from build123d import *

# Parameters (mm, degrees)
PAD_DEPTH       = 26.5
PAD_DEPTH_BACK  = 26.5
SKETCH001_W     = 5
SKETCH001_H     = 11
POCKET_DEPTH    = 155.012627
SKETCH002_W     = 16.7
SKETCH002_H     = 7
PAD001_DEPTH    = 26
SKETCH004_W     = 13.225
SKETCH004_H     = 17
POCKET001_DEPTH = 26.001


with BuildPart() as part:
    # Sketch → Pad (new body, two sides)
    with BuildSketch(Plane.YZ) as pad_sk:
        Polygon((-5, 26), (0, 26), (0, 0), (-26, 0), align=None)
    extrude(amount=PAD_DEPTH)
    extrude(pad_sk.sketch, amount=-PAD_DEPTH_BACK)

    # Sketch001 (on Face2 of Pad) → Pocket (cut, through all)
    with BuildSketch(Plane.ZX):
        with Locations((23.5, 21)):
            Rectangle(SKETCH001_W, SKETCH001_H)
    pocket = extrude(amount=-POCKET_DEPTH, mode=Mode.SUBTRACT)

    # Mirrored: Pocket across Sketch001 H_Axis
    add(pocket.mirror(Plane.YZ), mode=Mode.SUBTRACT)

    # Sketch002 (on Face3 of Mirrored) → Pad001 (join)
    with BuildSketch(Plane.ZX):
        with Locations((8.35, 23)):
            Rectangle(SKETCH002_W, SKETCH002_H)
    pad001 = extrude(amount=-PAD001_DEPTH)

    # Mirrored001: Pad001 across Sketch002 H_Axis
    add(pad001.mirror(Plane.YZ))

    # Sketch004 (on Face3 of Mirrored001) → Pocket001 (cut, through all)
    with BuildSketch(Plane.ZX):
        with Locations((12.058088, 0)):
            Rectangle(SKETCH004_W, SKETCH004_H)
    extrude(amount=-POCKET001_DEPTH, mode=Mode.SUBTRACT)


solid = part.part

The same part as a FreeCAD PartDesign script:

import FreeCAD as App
import Part
import Sketcher
from FreeCAD import Vector

doc = App.newDocument("Part")
body = doc.addObject("PartDesign::Body", "Body")

# Sketch on YZ plane
sketch1 = doc.addObject("Sketcher::SketchObject", "Sketch")
body.addObject(sketch1)
sketch1.AttachmentSupport = (doc.YZ_Plane, [""])
sketch1.MapMode = "FlatFace"
sketch1.addGeometry([
    Part.LineSegment(Vector(0, 26, 0), Vector(-5, 26, 0)),
    Part.LineSegment(Vector(-5, 26, 0), Vector(-26, 0, 0)),
    Part.LineSegment(Vector(-26, 0, 0), Vector(0, 0, 0)),
    Part.LineSegment(Vector(0, 0, 0), Vector(0, 26, 0)),
], False)
sketch1.addConstraint([
    Sketcher.Constraint("Coincident", 0, 2, 1, 1),
    Sketcher.Constraint("Coincident", 1, 2, 2, 1),
    Sketcher.Constraint("Coincident", 2, 2, 3, 1),
    Sketcher.Constraint("Coincident", 3, 2, 0, 1),
    Sketcher.Constraint("Horizontal", 0),
    Sketcher.Constraint("Horizontal", 2),
    Sketcher.Constraint("Vertical", 3),
    Sketcher.Constraint("Coincident", 2, 2, -1, 1),
    Sketcher.Constraint("Equal", 2, 3),
    Sketcher.Constraint("DistanceX", 0, 2, 0, 1, 5.0),
    Sketcher.Constraint("DistanceX", 2, 1, 2, 2, 26.0),
])
pad1 = doc.addObject("PartDesign::Pad", "Pad")
body.addObject(pad1)
pad1.Profile = sketch1
pad1.Type = "TwoLengths"
pad1.Length = 26.5
pad1.Length2 = 26.5

# Sketch on XZ plane
sketch2 = doc.addObject("Sketcher::SketchObject", "Sketch001")
body.addObject(sketch2)
sketch2.AttachmentSupport = (doc.XZ_Plane, [""])
sketch2.MapMode = "FlatFace"
sketch2.addGeometry([
    Part.LineSegment(Vector(26.5, 21, 0), Vector(15.5, 21, 0)),
    Part.LineSegment(Vector(15.5, 21, 0), Vector(15.5, 26, 0)),
    Part.LineSegment(Vector(15.5, 26, 0), Vector(26.5, 26, 0)),
    Part.LineSegment(Vector(26.5, 26, 0), Vector(26.5, 21, 0)),
], False)
sketch2.addConstraint([
    Sketcher.Constraint("Coincident", 0, 2, 1, 1),
    Sketcher.Constraint("Coincident", 1, 2, 2, 1),
    Sketcher.Constraint("Coincident", 2, 2, 3, 1),
    Sketcher.Constraint("Coincident", 3, 2, 0, 1),
    Sketcher.Constraint("Horizontal", 0),
    Sketcher.Constraint("Vertical", 1),
    Sketcher.Constraint("Horizontal", 2),
    Sketcher.Constraint("Vertical", 3),
    Sketcher.Constraint("DistanceX", 0, 2, 0, 1, 11.0),
    Sketcher.Constraint("DistanceY", 1, 1, 1, 2, 5.0),
    Sketcher.Constraint("DistanceY", -1, 1, 0, 2, 21.0),
    Sketcher.Constraint("DistanceX", -1, 1, 0, 2, 15.5),
])
pocket1 = doc.addObject("PartDesign::Pocket", "Pocket")
body.addObject(pocket1)
pocket1.Profile = sketch2
pocket1.Type = "ThroughAll"
pocket1.Reversed = True
doc.recompute()

mirrored = doc.addObject("PartDesign::Mirrored", "Mirrored")
body.addObject(mirrored)
mirrored.Originals = [pocket1]
mirrored.MirrorPlane = (doc.YZ_Plane, [""])
body.Tip = mirrored

# Sketch on XZ plane
sketch3 = doc.addObject("Sketcher::SketchObject", "Sketch002")
body.addObject(sketch3)
sketch3.AttachmentSupport = (doc.XZ_Plane, [""])
sketch3.MapMode = "FlatFace"
sketch3.addGeometry([
    Part.LineSegment(Vector(26.5, 0, 0), Vector(19.5, 0, 0)),
    Part.LineSegment(Vector(19.5, 0, 0), Vector(19.5, 16.7, 0)),
    Part.LineSegment(Vector(19.5, 16.7, 0), Vector(26.5, 16.7, 0)),
    Part.LineSegment(Vector(26.5, 16.7, 0), Vector(26.5, 0, 0)),
], False)
sketch3.addConstraint([
    Sketcher.Constraint("Coincident", 0, 2, 1, 1),
    Sketcher.Constraint("Coincident", 1, 2, 2, 1),
    Sketcher.Constraint("Coincident", 2, 2, 3, 1),
    Sketcher.Constraint("Coincident", 3, 2, 0, 1),
    Sketcher.Constraint("Horizontal", 0),
    Sketcher.Constraint("Vertical", 1),
    Sketcher.Constraint("Horizontal", 2),
    Sketcher.Constraint("Vertical", 3),
    Sketcher.Constraint("PointOnObject", 0, 2, -1),
    Sketcher.Constraint("DistanceX", 0, 2, 0, 1, 7.0),
    Sketcher.Constraint("DistanceY", 1, 1, 1, 2, 16.7),
    Sketcher.Constraint("DistanceX", -1, 1, 0, 2, 19.5),
])
pad2 = doc.addObject("PartDesign::Pad", "Pad001")
body.addObject(pad2)
pad2.Profile = sketch3
pad2.Length = 26
doc.recompute()

mirrored2 = doc.addObject("PartDesign::Mirrored", "Mirrored001")
body.addObject(mirrored2)
mirrored2.Originals = [pad2]
mirrored2.MirrorPlane = (doc.YZ_Plane, [""])
body.Tip = mirrored2

# Sketch on XZ plane
sketch4 = doc.addObject("Sketcher::SketchObject", "Sketch003")
body.addObject(sketch4)
sketch4.AttachmentSupport = (doc.XZ_Plane, [""])
sketch4.MapMode = "FlatFace"
sketch4.addGeometry([
    Part.LineSegment(Vector(8.5, 5.445588, 0), Vector(-8.5, 5.445588, 0)),
    Part.LineSegment(Vector(-8.5, 5.445588, 0), Vector(-8.5, 18.670588, 0)),
    Part.LineSegment(Vector(-8.5, 18.670588, 0), Vector(8.5, 18.670588, 0)),
    Part.LineSegment(Vector(8.5, 18.670588, 0), Vector(8.5, 5.445588, 0)),
], False)
sketch4.addConstraint([
    Sketcher.Constraint("Coincident", 0, 2, 1, 1),
    Sketcher.Constraint("Coincident", 1, 2, 2, 1),
    Sketcher.Constraint("Coincident", 2, 2, 3, 1),
    Sketcher.Constraint("Coincident", 3, 2, 0, 1),
    Sketcher.Constraint("Horizontal", 0),
    Sketcher.Constraint("Vertical", 1),
    Sketcher.Constraint("Horizontal", 2),
    Sketcher.Constraint("Vertical", 3),
    Sketcher.Constraint("DistanceX", 0, 2, 0, 1, 17.0),
    Sketcher.Constraint("DistanceX", 0, 2, -1, 1, 8.5),
    Sketcher.Constraint("DistanceY", 1, 1, 1, 2, 13.225),
    Sketcher.Constraint("DistanceY", -1, 1, 0, 2, 5.445588),
])
pocket2 = doc.addObject("PartDesign::Pocket", "Pocket001")
body.addObject(pocket2)
pocket2.Profile = sketch4
pocket2.Type = "ThroughAll"
pocket2.Reversed = True

doc.recompute()
